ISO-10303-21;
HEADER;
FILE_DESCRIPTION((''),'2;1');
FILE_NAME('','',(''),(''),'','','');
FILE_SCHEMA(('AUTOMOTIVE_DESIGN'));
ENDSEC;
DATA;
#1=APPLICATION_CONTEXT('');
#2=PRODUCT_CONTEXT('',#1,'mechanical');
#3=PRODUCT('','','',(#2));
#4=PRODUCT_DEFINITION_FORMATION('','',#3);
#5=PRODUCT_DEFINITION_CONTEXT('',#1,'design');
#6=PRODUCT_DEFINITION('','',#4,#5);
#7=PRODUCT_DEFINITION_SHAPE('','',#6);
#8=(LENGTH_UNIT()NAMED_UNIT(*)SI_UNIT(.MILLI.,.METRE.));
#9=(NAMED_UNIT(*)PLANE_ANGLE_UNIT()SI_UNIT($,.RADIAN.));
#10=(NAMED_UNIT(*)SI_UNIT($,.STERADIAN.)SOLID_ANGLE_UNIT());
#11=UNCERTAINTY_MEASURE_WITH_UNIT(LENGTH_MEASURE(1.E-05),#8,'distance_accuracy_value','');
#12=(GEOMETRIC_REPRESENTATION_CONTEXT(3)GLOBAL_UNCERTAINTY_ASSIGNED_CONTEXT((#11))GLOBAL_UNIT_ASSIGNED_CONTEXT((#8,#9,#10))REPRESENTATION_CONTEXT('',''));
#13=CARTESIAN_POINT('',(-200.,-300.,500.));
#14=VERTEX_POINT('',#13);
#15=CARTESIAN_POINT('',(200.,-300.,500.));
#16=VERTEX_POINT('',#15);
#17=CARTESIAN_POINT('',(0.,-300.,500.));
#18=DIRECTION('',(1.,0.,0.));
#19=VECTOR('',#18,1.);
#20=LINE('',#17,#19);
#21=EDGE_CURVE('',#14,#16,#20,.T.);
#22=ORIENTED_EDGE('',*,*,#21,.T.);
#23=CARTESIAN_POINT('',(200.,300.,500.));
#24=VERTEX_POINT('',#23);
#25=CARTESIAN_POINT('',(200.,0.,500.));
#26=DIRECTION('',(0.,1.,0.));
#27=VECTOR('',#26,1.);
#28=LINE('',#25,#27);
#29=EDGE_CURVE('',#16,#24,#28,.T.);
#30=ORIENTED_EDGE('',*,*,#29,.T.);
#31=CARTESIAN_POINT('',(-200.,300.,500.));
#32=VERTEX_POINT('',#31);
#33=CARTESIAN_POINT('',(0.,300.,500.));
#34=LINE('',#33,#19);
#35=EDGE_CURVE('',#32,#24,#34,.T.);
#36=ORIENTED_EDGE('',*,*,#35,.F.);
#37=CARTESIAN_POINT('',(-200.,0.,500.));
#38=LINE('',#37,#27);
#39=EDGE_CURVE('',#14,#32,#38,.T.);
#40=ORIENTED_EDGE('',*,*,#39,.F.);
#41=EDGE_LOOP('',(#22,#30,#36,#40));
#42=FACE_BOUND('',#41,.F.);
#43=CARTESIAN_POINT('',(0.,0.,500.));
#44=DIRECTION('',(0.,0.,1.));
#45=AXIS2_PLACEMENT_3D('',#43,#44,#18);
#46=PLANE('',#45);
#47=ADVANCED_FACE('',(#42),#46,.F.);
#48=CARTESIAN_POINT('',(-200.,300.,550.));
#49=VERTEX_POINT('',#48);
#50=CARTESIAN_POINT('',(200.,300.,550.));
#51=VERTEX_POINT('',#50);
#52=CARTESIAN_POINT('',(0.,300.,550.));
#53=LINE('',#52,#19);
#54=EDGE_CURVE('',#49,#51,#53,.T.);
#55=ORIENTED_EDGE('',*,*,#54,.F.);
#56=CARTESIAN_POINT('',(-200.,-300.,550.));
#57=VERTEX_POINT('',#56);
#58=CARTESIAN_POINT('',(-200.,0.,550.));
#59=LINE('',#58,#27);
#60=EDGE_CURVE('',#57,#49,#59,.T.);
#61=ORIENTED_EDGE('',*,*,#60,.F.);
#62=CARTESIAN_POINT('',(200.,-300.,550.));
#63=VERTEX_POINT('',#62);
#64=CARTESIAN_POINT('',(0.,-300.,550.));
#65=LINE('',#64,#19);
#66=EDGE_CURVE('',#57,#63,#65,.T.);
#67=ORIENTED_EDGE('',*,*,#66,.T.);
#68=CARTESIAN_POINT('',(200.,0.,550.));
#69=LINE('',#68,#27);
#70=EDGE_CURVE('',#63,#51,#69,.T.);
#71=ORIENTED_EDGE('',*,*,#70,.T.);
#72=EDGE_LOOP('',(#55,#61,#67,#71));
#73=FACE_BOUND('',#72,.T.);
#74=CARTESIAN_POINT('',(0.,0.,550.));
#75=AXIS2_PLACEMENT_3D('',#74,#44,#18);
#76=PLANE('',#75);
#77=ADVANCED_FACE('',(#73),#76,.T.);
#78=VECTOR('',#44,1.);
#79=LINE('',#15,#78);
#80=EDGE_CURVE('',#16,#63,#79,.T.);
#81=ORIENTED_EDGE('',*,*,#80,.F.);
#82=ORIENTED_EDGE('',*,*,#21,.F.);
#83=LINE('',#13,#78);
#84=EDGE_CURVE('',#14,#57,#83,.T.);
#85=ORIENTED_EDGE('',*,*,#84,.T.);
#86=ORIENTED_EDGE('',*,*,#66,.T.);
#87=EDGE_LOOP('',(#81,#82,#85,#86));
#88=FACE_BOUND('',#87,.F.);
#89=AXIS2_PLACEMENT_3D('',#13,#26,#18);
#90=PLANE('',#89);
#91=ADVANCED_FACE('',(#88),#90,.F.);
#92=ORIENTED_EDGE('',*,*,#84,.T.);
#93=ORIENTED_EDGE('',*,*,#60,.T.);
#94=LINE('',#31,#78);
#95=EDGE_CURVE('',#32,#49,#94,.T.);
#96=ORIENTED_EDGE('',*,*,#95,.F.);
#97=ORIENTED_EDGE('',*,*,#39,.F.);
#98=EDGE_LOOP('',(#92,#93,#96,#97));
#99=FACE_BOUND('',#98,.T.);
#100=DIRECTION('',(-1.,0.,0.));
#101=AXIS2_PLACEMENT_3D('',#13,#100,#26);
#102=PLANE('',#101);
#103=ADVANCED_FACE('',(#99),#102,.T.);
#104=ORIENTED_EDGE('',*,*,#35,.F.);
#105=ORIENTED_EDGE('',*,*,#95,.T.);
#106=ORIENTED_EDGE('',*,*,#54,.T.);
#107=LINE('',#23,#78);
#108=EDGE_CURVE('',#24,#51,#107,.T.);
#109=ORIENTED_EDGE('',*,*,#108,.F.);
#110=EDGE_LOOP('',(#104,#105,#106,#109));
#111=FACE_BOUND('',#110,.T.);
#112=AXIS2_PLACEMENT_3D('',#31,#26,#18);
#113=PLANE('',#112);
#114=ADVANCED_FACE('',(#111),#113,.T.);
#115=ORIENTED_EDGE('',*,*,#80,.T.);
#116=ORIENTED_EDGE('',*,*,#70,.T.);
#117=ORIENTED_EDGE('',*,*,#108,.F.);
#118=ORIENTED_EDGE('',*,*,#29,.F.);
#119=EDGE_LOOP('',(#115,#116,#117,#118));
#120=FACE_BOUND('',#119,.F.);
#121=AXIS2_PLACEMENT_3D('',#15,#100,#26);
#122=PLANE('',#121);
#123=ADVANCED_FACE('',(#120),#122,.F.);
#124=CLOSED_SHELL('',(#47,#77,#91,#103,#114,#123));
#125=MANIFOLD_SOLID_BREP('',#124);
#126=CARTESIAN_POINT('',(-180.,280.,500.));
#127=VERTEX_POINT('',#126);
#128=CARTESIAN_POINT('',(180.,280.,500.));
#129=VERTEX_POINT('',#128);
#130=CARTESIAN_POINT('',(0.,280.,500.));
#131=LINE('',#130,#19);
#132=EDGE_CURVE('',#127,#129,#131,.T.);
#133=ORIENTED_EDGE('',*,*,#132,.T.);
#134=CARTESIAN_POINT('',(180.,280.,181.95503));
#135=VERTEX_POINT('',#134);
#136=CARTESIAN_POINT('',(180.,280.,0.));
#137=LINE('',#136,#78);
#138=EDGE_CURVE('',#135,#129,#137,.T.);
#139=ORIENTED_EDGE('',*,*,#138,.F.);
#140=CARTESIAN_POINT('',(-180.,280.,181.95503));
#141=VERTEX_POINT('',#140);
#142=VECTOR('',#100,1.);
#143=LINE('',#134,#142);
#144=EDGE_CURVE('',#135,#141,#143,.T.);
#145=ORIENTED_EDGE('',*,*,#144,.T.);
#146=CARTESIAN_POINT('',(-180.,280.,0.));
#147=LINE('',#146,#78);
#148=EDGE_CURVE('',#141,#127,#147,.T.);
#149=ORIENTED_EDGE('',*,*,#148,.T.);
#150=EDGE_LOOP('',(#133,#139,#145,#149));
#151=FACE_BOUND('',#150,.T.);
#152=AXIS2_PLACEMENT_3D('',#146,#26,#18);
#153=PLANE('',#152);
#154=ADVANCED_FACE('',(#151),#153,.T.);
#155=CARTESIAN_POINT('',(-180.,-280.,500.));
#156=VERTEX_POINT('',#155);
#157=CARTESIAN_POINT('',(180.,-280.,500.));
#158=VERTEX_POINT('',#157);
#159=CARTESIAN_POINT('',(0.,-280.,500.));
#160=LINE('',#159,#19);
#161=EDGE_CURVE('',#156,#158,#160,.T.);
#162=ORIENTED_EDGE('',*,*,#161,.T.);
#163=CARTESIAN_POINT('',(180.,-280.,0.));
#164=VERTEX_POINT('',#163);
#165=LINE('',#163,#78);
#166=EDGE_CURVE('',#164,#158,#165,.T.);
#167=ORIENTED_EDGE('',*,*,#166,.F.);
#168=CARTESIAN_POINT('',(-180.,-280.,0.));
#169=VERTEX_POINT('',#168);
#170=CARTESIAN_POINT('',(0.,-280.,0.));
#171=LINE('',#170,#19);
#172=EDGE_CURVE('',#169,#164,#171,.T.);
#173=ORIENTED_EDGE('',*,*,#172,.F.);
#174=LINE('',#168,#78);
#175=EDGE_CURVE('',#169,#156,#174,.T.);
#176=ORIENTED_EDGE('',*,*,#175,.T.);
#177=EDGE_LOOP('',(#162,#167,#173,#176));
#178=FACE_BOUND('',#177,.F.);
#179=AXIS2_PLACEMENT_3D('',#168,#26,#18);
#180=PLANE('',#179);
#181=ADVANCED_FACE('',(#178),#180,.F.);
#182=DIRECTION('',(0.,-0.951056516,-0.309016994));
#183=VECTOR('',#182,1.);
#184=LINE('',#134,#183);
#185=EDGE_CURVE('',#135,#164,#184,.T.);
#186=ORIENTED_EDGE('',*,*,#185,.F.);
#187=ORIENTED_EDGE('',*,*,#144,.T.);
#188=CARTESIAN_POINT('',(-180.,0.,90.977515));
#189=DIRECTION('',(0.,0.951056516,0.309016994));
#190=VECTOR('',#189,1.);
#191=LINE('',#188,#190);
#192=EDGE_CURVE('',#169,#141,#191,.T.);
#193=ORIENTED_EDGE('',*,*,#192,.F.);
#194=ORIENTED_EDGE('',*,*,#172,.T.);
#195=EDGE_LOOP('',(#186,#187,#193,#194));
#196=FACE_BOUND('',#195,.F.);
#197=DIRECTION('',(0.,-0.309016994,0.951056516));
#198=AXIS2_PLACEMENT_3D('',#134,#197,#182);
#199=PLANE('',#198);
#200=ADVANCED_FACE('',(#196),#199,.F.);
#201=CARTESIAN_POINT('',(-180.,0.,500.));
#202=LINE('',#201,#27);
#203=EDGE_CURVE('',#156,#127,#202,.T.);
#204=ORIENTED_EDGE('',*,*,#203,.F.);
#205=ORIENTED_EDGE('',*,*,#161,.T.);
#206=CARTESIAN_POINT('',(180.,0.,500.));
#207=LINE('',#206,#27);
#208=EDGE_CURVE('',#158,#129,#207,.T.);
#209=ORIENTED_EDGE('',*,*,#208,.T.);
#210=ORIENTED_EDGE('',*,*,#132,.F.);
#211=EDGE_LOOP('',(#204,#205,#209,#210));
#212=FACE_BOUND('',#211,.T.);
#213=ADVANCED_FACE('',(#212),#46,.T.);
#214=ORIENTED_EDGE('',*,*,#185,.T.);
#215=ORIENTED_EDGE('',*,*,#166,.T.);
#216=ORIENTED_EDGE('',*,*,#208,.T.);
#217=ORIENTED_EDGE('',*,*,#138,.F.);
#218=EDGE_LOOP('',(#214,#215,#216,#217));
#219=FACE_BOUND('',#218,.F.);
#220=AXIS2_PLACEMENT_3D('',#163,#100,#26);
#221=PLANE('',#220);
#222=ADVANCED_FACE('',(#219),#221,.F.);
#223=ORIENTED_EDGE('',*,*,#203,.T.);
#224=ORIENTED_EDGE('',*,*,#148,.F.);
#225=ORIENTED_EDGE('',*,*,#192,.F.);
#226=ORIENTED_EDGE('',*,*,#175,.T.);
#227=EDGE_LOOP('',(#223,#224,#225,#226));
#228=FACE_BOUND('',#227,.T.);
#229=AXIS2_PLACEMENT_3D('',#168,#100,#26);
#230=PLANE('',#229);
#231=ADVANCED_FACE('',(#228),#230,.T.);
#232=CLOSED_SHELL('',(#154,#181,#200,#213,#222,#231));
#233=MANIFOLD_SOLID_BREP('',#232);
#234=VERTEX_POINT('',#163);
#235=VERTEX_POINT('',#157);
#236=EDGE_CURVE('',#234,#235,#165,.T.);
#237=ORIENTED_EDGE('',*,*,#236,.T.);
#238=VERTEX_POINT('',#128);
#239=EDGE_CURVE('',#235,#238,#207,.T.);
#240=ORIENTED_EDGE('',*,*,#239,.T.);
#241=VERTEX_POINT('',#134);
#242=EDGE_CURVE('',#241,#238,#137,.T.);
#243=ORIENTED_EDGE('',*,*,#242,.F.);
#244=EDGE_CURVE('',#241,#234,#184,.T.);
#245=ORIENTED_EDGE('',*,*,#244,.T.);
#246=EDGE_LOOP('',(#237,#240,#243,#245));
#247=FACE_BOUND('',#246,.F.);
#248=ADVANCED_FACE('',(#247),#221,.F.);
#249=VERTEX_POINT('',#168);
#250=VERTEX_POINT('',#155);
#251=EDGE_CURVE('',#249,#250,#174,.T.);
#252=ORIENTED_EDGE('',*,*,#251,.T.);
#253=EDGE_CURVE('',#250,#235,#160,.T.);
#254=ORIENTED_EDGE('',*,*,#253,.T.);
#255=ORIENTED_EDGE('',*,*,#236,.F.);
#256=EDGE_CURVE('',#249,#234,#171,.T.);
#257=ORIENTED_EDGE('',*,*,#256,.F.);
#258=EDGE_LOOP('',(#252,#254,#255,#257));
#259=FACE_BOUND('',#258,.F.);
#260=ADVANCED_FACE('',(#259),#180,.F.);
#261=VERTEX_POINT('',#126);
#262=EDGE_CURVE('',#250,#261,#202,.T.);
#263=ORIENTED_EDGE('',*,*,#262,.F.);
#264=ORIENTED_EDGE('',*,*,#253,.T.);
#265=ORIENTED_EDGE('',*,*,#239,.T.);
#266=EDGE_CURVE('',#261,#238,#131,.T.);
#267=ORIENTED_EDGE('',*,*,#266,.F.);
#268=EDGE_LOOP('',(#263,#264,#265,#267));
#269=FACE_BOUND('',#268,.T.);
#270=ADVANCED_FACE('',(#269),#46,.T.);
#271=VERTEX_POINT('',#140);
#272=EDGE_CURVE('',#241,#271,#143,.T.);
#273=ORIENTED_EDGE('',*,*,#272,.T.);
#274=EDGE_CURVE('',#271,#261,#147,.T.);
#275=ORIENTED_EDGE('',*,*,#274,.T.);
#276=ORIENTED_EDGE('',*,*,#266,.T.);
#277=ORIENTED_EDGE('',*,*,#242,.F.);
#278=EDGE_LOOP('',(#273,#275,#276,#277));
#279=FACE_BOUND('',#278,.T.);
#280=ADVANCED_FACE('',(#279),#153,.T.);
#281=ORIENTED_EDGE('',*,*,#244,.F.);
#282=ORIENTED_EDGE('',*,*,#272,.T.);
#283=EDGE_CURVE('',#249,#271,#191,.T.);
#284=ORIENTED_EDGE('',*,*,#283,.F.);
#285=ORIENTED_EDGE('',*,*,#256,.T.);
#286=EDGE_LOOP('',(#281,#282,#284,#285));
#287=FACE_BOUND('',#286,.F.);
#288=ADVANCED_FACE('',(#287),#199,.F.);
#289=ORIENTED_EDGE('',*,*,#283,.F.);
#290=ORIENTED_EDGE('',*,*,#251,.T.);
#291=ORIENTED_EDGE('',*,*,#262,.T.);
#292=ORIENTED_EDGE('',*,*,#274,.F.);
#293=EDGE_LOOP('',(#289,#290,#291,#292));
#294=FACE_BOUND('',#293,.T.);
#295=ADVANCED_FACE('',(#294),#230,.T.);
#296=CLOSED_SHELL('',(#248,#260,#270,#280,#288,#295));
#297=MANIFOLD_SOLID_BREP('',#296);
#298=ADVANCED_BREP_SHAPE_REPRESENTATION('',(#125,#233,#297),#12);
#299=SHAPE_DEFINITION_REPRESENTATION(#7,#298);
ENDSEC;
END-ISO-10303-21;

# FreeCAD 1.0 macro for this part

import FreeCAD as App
import Part
import Sketcher
from FreeCAD import Vector
Q = App.Units.Quantity

doc = App.newDocument("Part")
body = doc.addObject("PartDesign::Body", "Body")

# Sketch on XY plane
sketch1 = body.newObject("Sketcher::SketchObject", "Sketch")
sketch1.AttachmentSupport = (doc.getObject("XY_Plane"), [""])
sketch1.MapMode = "FlatFace"
sketch1.addGeometry([
    Part.LineSegment(Vector(-180, 280, 0), Vector(-180, -280, 0)),
    Part.LineSegment(Vector(-180, -280, 0), Vector(180, -280, 0)),
    Part.LineSegment(Vector(180, -280, 0), Vector(180, 280, 0)),
    Part.LineSegment(Vector(180, 280, 0), Vector(-180, 280, 0)),
], False)
sketch1.addConstraint([
    Sketcher.Constraint("Coincident", 0, 2, 1, 1),
    Sketcher.Constraint("Coincident", 1, 2, 2, 1),
    Sketcher.Constraint("Coincident", 2, 2, 3, 1),
    Sketcher.Constraint("Coincident", 3, 2, 0, 1),
    Sketcher.Constraint("Vertical", 0),
    Sketcher.Constraint("Horizontal", 1),
    Sketcher.Constraint("Vertical", 2),
    Sketcher.Constraint("Horizontal", 3),
    Sketcher.Constraint("Symmetric", 0, 2, 2, 2, -1, 1),
    Sketcher.Constraint("DistanceX", 1, 1, 1, 2, 360.0),
    Sketcher.Constraint("DistanceY", 0, 2, 0, 1, 560.0),
])
pad1 = body.newObject("PartDesign::Pad", "Pad")
pad1.Profile = sketch1
pad1.Length = 500
body2 = doc.addObject("PartDesign::Body", "Body001")

# Sketch on XY plane
sketch2 = body2.newObject("Sketcher::SketchObject", "Sketch001")
sketch2.AttachmentSupport = (doc.getObject("XY_Plane001"), [""])
sketch2.MapMode = "FlatFace"
sketch2.addGeometry([
    Part.LineSegment(Vector(-180, 280, 0), Vector(-180, -280, 0)),
    Part.LineSegment(Vector(-180, -280, 0), Vector(180, -280, 0)),
    Part.LineSegment(Vector(180, -280, 0), Vector(180, 280, 0)),
    Part.LineSegment(Vector(180, 280, 0), Vector(-180, 280, 0)),
], False)
sketch2.addConstraint([
    Sketcher.Constraint("Coincident", 0, 2, 1, 1),
    Sketcher.Constraint("Coincident", 1, 2, 2, 1),
    Sketcher.Constraint("Coincident", 2, 2, 3, 1),
    Sketcher.Constraint("Coincident", 3, 2, 0, 1),
    Sketcher.Constraint("Vertical", 0),
    Sketcher.Constraint("Horizontal", 1),
    Sketcher.Constraint("Vertical", 2),
    Sketcher.Constraint("Horizontal", 3),
    Sketcher.Constraint("Symmetric", 0, 2, 2, 2, -1, 1),
    Sketcher.Constraint("DistanceX", 1, 1, 1, 2, 360.0),
    Sketcher.Constraint("DistanceY", 0, 2, 0, 1, 560.0),
])
pad2 = body2.newObject("PartDesign::Pad", "Pad001")
pad2.Profile = sketch2
pad2.Length = 500
body3 = doc.addObject("PartDesign::Body", "Body002")

# Sketch on XY plane
sketch3 = body3.newObject("Sketcher::SketchObject", "Sketch002")
sketch3.AttachmentSupport = (doc.getObject("XY_Plane002"), [""])
sketch3.MapMode = "FlatFace"
sketch3.AttachmentOffset = App.Placement(Vector(0, 0, 500), App.Rotation())
sketch3.addGeometry([
    Part.LineSegment(Vector(-200, 300, 0), Vector(-200, -300, 0)),
    Part.LineSegment(Vector(-200, -300, 0), Vector(200, -300, 0)),
    Part.LineSegment(Vector(200, -300, 0), Vector(200, 300, 0)),
    Part.LineSegment(Vector(200, 300, 0), Vector(-200, 300, 0)),
], False)
sketch3.addConstraint([
    Sketcher.Constraint("Coincident", 0, 2, 1, 1),
    Sketcher.Constraint("Coincident", 1, 2, 2, 1),
    Sketcher.Constraint("Coincident", 2, 2, 3, 1),
    Sketcher.Constraint("Coincident", 3, 2, 0, 1),
    Sketcher.Constraint("Vertical", 0),
    Sketcher.Constraint("Horizontal", 1),
    Sketcher.Constraint("Vertical", 2),
    Sketcher.Constraint("Horizontal", 3),
    Sketcher.Constraint("Symmetric", 0, 2, 2, 2, -1, 1),
    Sketcher.Constraint("DistanceX", 1, 1, 1, 2, 400.0),
    Sketcher.Constraint("DistanceY", 0, 2, 0, 1, 600.0),
])
pad3 = body3.newObject("PartDesign::Pad", "Pad002")
pad3.Profile = sketch3
pad3.Length = 50
body4 = doc.addObject("PartDesign::Body", "Body003")

# Sketch on YZ plane
sketch4 = body4.newObject("Sketcher::SketchObject", "Sketch003")
sketch4.AttachmentSupport = (doc.getObject("YZ_Plane003"), [""])
sketch4.MapMode = "FlatFace"
sketch4.AttachmentOffset = App.Placement(Vector(0, 0, 180), App.Rotation())
sketch4.addGeometry([
    Part.LineSegment(Vector(280, 182, 0), Vector(-280, 0, 0)),
    Part.LineSegment(Vector(-280, 0, 0), Vector(280, 0, 0)),
    Part.LineSegment(Vector(280, 0, 0), Vector(280, 182, 0)),
], False)
sketch4.addConstraint([
    Sketcher.Constraint("Coincident", 0, 2, 1, 1),
    Sketcher.Constraint("Coincident", 1, 2, 2, 1),
    Sketcher.Constraint("Coincident", 2, 2, 0, 1),
    Sketcher.Constraint("Horizontal", 1),
    Sketcher.Constraint("Vertical", 2),
    Sketcher.Constraint("Symmetric", 0, 2, 1, 2, -1, 1),
    Sketcher.Constraint("DistanceX", 1, 1, 1, 2, 560.0),
    Sketcher.Constraint("Angle", 0, Q("-162 deg")),
])
pad4 = body4.newObject("PartDesign::Pad", "Pad003")
pad4.Profile = sketch4
pad4.Length = 800
pad4.Reversed = True
doc.recompute()

body5 = doc.addObject("PartDesign::Body", "Body004")
body5.BaseFeature = body4
boolean = body.newObject("PartDesign::Boolean", "Boolean")
boolean.Type = "Cut"
boolean.addObjects([body5])
doc.recompute()

boolean2 = body2.newObject("PartDesign::Boolean", "Boolean001")
boolean2.Type = "Cut"
boolean2.addObjects([body4])

doc.recompute()
